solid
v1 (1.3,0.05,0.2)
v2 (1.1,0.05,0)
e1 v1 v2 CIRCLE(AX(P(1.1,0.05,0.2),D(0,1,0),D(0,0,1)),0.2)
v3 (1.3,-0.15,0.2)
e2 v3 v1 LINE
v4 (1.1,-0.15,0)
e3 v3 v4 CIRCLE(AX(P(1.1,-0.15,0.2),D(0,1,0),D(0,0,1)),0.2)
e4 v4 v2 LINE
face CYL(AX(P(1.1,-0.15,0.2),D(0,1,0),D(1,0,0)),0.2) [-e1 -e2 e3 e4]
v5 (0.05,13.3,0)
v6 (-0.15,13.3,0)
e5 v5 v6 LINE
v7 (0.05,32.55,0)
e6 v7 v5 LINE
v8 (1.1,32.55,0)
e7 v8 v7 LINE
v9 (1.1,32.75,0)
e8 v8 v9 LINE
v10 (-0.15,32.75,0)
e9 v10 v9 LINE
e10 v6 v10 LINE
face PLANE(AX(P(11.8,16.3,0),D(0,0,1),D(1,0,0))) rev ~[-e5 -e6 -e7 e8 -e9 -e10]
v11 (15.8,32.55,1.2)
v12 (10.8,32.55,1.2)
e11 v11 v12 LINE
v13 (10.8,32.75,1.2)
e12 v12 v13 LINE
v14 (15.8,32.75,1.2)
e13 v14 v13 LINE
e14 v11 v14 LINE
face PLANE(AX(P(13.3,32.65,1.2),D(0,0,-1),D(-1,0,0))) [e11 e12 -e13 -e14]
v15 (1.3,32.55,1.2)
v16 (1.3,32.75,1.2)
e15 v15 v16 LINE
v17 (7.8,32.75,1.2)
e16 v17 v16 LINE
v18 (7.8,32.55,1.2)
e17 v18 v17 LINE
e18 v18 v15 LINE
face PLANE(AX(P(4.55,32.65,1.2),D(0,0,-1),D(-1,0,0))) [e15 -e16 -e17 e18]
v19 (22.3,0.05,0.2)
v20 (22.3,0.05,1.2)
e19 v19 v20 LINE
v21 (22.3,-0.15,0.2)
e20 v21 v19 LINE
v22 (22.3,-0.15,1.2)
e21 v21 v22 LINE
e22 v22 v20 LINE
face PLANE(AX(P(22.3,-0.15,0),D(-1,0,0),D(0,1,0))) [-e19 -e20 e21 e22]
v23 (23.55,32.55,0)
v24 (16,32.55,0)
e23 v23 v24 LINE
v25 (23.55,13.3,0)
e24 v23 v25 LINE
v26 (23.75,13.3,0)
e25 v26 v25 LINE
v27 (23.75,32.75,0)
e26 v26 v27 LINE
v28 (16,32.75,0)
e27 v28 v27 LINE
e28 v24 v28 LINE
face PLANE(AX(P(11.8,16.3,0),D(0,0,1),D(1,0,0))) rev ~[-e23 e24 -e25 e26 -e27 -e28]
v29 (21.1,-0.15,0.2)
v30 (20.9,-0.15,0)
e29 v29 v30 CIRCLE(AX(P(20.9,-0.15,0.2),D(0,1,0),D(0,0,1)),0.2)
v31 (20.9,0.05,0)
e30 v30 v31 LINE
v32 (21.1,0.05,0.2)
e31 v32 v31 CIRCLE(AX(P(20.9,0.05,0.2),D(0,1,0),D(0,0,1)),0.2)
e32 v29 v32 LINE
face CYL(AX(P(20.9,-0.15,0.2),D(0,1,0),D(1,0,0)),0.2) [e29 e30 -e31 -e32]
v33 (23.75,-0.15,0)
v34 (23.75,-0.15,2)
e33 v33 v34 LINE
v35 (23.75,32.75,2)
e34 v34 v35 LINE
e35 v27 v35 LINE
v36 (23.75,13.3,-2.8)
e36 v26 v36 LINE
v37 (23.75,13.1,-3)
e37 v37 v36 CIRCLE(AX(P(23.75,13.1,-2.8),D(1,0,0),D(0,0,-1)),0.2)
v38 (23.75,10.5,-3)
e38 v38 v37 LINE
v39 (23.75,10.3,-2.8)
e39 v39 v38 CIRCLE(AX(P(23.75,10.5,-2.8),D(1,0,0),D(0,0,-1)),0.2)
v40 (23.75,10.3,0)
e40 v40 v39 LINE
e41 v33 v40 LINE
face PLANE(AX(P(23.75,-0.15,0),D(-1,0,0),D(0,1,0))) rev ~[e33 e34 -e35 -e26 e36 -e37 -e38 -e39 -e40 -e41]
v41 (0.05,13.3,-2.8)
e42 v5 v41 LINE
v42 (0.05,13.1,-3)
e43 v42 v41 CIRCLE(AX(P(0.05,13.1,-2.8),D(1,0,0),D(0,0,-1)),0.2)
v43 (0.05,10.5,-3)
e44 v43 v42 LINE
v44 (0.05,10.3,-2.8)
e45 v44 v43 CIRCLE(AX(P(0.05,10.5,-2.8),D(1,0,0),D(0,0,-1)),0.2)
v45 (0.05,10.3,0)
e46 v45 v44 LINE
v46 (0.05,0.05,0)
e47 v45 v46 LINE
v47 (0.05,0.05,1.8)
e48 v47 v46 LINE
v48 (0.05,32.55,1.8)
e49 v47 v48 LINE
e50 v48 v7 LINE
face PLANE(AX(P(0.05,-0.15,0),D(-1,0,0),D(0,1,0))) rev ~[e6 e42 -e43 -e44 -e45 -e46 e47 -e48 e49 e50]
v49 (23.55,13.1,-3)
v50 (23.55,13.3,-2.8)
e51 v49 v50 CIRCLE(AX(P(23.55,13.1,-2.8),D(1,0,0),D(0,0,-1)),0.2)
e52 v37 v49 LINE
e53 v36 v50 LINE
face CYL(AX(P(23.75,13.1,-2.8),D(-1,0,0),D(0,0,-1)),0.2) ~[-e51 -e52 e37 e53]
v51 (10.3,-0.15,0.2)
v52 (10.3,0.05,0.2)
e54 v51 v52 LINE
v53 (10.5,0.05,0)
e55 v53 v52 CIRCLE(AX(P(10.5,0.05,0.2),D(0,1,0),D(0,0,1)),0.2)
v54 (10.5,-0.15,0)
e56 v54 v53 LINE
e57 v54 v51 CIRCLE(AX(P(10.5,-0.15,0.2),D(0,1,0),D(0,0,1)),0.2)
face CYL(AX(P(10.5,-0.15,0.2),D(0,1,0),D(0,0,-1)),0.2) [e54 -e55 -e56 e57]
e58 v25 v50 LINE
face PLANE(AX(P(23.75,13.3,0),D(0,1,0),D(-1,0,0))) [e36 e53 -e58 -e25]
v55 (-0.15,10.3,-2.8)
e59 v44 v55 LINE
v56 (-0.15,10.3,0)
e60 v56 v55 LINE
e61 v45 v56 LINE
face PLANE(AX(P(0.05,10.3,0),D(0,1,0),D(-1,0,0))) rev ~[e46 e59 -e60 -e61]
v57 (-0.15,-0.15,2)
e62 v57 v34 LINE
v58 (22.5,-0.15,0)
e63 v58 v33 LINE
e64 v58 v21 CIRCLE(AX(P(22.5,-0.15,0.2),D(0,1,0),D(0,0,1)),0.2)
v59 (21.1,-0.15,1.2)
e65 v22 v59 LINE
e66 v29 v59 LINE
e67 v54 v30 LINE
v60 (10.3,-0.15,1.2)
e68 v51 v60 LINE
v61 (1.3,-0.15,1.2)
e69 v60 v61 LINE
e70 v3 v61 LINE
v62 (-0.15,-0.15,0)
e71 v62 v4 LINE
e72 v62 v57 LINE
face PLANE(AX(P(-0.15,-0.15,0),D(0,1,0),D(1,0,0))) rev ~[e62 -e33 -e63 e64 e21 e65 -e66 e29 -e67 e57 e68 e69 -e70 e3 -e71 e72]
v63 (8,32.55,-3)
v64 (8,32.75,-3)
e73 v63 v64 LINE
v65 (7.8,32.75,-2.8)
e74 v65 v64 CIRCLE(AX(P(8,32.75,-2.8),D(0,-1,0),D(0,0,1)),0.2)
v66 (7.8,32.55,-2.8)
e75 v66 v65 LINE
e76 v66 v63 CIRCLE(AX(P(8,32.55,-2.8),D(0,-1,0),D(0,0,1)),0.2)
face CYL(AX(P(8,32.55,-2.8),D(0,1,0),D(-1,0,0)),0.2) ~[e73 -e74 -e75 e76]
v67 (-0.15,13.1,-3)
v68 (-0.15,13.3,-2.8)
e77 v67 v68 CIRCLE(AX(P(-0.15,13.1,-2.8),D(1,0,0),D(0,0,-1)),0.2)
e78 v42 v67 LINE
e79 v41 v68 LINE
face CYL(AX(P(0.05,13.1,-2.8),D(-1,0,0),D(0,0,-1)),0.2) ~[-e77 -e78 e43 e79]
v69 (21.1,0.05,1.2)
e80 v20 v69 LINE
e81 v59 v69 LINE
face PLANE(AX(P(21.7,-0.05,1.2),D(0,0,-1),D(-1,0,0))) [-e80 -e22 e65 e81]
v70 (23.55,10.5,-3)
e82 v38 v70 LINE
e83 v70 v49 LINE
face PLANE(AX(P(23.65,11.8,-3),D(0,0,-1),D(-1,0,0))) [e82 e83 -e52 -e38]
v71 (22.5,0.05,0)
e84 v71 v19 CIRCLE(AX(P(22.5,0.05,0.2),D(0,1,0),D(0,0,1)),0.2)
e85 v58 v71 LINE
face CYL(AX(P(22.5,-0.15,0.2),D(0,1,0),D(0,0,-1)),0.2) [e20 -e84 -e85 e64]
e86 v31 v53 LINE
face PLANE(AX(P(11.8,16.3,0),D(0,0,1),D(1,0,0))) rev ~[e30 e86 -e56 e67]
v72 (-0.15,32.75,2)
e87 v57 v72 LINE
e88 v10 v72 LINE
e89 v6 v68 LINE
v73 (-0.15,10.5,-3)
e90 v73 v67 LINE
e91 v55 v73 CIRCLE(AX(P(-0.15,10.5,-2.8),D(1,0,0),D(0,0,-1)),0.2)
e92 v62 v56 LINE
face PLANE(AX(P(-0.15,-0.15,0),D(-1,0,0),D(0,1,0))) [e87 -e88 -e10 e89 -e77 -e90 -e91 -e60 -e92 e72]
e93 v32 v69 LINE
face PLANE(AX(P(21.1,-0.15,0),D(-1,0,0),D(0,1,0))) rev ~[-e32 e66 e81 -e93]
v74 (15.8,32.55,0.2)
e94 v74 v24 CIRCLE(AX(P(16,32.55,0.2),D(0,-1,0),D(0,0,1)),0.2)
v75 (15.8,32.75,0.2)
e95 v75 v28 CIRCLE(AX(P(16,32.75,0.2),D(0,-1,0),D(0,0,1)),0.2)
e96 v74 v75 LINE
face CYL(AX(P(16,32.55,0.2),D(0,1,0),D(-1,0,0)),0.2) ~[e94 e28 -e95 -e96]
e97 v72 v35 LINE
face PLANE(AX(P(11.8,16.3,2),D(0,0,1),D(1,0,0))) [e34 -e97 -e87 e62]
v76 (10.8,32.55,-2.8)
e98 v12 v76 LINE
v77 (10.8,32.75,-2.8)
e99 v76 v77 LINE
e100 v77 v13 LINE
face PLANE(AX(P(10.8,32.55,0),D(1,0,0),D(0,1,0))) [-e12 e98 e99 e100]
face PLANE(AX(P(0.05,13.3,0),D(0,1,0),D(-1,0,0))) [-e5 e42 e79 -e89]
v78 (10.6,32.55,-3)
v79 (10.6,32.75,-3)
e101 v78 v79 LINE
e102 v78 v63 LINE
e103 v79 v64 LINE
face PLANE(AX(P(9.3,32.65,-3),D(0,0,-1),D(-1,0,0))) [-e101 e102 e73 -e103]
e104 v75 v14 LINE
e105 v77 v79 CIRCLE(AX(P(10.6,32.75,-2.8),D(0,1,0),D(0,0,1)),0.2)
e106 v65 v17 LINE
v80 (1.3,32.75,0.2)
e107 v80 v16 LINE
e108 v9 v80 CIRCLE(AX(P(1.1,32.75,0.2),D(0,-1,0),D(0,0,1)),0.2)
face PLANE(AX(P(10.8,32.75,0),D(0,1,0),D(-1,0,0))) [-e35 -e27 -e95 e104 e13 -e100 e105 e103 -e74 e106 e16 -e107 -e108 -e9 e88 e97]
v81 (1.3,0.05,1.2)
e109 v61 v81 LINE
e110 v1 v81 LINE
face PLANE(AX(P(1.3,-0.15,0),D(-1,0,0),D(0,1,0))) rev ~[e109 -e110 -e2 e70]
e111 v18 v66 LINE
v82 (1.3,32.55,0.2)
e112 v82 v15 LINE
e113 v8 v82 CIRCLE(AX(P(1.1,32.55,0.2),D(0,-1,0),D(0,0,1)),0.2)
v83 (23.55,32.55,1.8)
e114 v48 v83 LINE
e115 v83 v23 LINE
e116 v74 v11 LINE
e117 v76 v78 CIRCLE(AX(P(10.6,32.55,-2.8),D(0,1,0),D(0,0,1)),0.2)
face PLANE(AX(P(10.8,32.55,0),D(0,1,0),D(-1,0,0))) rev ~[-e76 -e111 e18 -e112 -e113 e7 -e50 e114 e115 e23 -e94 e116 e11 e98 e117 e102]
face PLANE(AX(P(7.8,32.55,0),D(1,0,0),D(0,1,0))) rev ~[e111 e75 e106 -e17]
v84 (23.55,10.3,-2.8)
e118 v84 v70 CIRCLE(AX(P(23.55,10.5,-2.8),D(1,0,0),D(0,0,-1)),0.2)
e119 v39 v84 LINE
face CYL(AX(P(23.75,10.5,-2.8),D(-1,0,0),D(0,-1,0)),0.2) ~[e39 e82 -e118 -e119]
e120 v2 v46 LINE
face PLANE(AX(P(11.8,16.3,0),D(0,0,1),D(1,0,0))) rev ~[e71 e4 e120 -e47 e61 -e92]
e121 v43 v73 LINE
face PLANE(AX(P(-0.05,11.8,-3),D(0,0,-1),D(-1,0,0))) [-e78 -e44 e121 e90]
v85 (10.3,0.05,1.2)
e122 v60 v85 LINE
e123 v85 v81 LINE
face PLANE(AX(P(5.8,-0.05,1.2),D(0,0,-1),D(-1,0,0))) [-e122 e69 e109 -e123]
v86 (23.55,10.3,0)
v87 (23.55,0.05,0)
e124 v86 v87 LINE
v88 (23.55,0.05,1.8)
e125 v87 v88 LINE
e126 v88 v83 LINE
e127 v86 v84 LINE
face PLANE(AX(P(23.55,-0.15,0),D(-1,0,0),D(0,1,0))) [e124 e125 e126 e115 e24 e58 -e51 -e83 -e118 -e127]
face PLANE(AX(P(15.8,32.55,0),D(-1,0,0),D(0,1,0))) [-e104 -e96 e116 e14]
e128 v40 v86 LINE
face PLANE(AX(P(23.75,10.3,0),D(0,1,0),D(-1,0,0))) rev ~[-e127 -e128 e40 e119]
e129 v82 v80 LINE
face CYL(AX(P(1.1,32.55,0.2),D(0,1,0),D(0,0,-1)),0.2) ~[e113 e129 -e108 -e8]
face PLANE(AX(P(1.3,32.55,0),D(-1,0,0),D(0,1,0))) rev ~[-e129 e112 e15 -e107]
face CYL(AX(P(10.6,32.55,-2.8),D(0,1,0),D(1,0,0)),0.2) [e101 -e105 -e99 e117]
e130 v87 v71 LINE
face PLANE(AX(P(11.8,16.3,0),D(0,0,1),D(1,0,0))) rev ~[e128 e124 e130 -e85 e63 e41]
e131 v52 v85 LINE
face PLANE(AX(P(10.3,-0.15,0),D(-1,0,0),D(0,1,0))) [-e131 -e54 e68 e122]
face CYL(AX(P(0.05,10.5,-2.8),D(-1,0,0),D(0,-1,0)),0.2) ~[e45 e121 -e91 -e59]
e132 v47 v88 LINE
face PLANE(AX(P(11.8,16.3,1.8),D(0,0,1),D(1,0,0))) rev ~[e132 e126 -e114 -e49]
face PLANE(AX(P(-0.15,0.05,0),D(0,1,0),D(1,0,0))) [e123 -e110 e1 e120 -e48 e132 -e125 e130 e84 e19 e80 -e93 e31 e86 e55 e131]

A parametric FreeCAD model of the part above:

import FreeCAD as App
import Part
import Sketcher
from FreeCAD import Vector


def edges_at(feature, points):
    """Names of the edges that pass closest to the given points."""
    edges = feature.Shape.Edges
    near = lambda p: min(range(len(edges)), key=lambda i: edges[i].distToShape(Part.Vertex(*p))[0])
    return sorted({f"Edge{near(p) + 1}" for p in points})


def faces_at(feature, points):
    """Names of the faces that lie closest to the given points."""
    faces = feature.Shape.Faces
    near = lambda p: min(range(len(faces)), key=lambda i: faces[i].distToShape(Part.Vertex(*p))[0])
    return sorted({f"Face{near(p) + 1}" for p in points})


def add_polygon(sketch, points):
    """Adds a closed chain of lines whose ends are joined by coincident constraints."""
    first, n = sketch.GeometryCount, len(points)
    for a, b in zip(points, points[1:] + points[:1]):
        sketch.addGeometry(Part.LineSegment(App.Vector(*a, 0), App.Vector(*b, 0)), False)
    for i in range(n):
        sketch.addConstraint(Sketcher.Constraint("Coincident", first + i, 2, first + (i + 1) % n, 1))

doc = App.newDocument("Part")
params = doc.addObject("Spreadsheet::Sheet", "Params")
for row, (alias, value) in enumerate([
    ("sketch1_width", "23.9 mm"),
    ("sketch1_height", "32.9 mm"),
    ("pad1_length", "2 mm"),
    ("thickness_wall", "0.2 mm"),
    ("sketch2_width", "9 mm"),
    ("sketch2_width2", "5 mm"),
    ("sketch2_width3", "1.2 mm"),
    ("sketch2_width4", "6.5 mm"),
    ("sketch2_height", "0.2 mm"),
    ("pocket1_length", "1.2 mm"),
    ("sketch3_width", "3 mm"),
    ("sketch3_width2", "0.2 mm"),
    ("pad2_length", "3 mm"),
    ("fillet_radius", "0.2 mm"),
], start=1):
    params.set(f"A{row}", alias)
    params.set(f"B{row}", "=" + value)
    params.setAlias(f"B{row}", alias)

body = doc.addObject("PartDesign::Body", "Body")

sketch1 = doc.addObject("Sketcher::SketchObject", "Sketch")
body.addObject(sketch1)
sketch1.AttachmentSupport = (doc.XY_Plane, [""])
sketch1.MapMode = "FlatFace"
add_polygon(sketch1, [(-0.15, 32.75), (-0.15, -0.15), (23.75, -0.15), (23.75, 32.75)])
sketch1.addConstraint(Sketcher.Constraint("Vertical", 0))
sketch1.addConstraint(Sketcher.Constraint("Horizontal", 1))
sketch1.addConstraint(Sketcher.Constraint("Vertical", 2))
sketch1.addConstraint(Sketcher.Constraint("Horizontal", 3))
sketch1.addConstraint(Sketcher.Constraint("DistanceX", 1, 1, 1, 2, 23.9))
sketch1.addConstraint(Sketcher.Constraint("DistanceY", 0, 2, 0, 1, 32.9))
sketch1.addConstraint(Sketcher.Constraint("DistanceX", 0, 2, -1, 1, 0.15))
sketch1.addConstraint(Sketcher.Constraint("DistanceY", 0, 2, -1, 1, 0.15))
sketch1.setExpression("Constraints[8]", "Params.sketch1_width")
sketch1.setExpression("Constraints[9]", "Params.sketch1_height")
pad1 = doc.addObject("PartDesign::Pad", "Pad")
body.addObject(pad1)
pad1.Profile = sketch1
pad1.setExpression("Length", "Params.pad1_length")
doc.recompute()

thickness = doc.addObject("PartDesign::Thickness", "Thickness")
body.addObject(thickness)
thickness.Base = (pad1, faces_at(pad1, [(11.8, 16.3, 0)]))
thickness.setExpression("Value", "Params.thickness_wall")
thickness.Reversed = True
thickness.Join = "Intersection"

sketch2 = doc.addObject("Sketcher::SketchObject", "Sketch001")
body.addObject(sketch2)
sketch2.AttachmentSupport = (doc.XY_Plane, [""])
sketch2.MapMode = "FlatFace"
add_polygon(sketch2, [(10.3, 0.05), (10.3, -0.15), (1.3, -0.15), (1.3, 0.05)])
add_polygon(sketch2, [(22.3, 0.05), (22.3, -0.15), (21.1, -0.15), (21.1, 0.05)])
add_polygon(sketch2, [(15.8, 32.75), (15.8, 32.55), (10.8, 32.55), (10.8, 32.75)])
add_polygon(sketch2, [(7.8, 32.75), (7.8, 32.55), (1.3, 32.55), (1.3, 32.75)])
sketch2.addConstraint(Sketcher.Constraint("Vertical", 0))
sketch2.addConstraint(Sketcher.Constraint("Horizontal", 1))
sketch2.addConstraint(Sketcher.Constraint("Vertical", 2))
sketch2.addConstraint(Sketcher.Constraint("Horizontal", 3))
sketch2.addConstraint(Sketcher.Constraint("Vertical", 4))
sketch2.addConstraint(Sketcher.Constraint("Horizontal", 5))
sketch2.addConstraint(Sketcher.Constraint("Vertical", 6))
sketch2.addConstraint(Sketcher.Constraint("Horizontal", 7))
sketch2.addConstraint(Sketcher.Constraint("Vertical", 8))
sketch2.addConstraint(Sketcher.Constraint("Horizontal", 9))
sketch2.addConstraint(Sketcher.Constraint("Vertical", 10))
sketch2.addConstraint(Sketcher.Constraint("Horizontal", 11))
sketch2.addConstraint(Sketcher.Constraint("Vertical", 12))
sketch2.addConstraint(Sketcher.Constraint("Horizontal", 13))
sketch2.addConstraint(Sketcher.Constraint("Vertical", 14))
sketch2.addConstraint(Sketcher.Constraint("Horizontal", 15))
sketch2.addConstraint(Sketcher.Constraint("Horizontal", 1, 2, 4, 2))
sketch2.addConstraint(Sketcher.Constraint("Horizontal", 3, 2, 6, 2))
sketch2.addConstraint(Sketcher.Constraint("Horizontal", 9, 2, 12, 2))
sketch2.addConstraint(Sketcher.Constraint("Horizontal", 11, 2, 14, 2))
sketch2.addConstraint(Sketcher.Constraint("Vertical", 2, 2, 13, 2))
sketch2.addConstraint(Sketcher.Constraint("Equal", 6, 8))
sketch2.addConstraint(Sketcher.Constraint("DistanceX", 1, 2, 1, 1, 9.0))
sketch2.addConstraint(Sketcher.Constraint("DistanceX", 9, 2, 9, 1, 5.0))
sketch2.addConstraint(Sketcher.Constraint("DistanceX", 5, 2, 5, 1, 1.2))
sketch2.addConstraint(Sketcher.Constraint("DistanceX", 13, 2, 13, 1, 6.5))
sketch2.addConstraint(Sketcher.Constraint("DistanceY", 0, 2, 0, 1, 0.2))
sketch2.addConstraint(Sketcher.Constraint("DistanceX", 0, 2, 4, 2, 12.0))
sketch2.addConstraint(Sketcher.Constraint("DistanceX", 12, 2, 9, 2, 3.0))
sketch2.addConstraint(Sketcher.Constraint("DistanceX", -1, 1, 0, 2, 10.3))
sketch2.addConstraint(Sketcher.Constraint("DistanceY", 6, 2, 8, 2, 32.5))
sketch2.addConstraint(Sketcher.Constraint("DistanceY", 0, 2, -1, 1, 0.15))
sketch2.setExpression("Constraints[38]", "Params.sketch2_width")
sketch2.setExpression("Constraints[39]", "Params.sketch2_width2")
sketch2.setExpression("Constraints[40]", "Params.sketch2_width3")
sketch2.setExpression("Constraints[41]", "Params.sketch2_width4")
sketch2.setExpression("Constraints[42]", "Params.sketch2_height")
pocket1 = doc.addObject("PartDesign::Pocket", "Pocket")
body.addObject(pocket1)
pocket1.Profile = sketch2
pocket1.setExpression("Length", "Params.pocket1_length")
pocket1.Reversed = True

sketch3 = doc.addObject("Sketcher::SketchObject", "Sketch002")
body.addObject(sketch3)
sketch3.AttachmentSupport = (doc.XY_Plane, [""])
sketch3.MapMode = "FlatFace"
add_polygon(sketch3, [(10.8, 32.75), (10.8, 32.55), (7.8, 32.55), (7.8, 32.75)])
add_polygon(sketch3, [(23.75, 13.3), (23.75, 10.3), (23.55, 10.3), (23.55, 13.3)])
add_polygon(sketch3, [(0.05, 13.3), (0.05, 10.3), (-0.15, 10.3), (-0.15, 13.3)])
sketch3.addConstraint(Sketcher.Constraint("Vertical", 0))
sketch3.addConstraint(Sketcher.Constraint("Horizontal", 1))
sketch3.addConstraint(Sketcher.Constraint("Vertical", 2))
sketch3.addConstraint(Sketcher.Constraint("Horizontal", 3))
sketch3.addConstraint(Sketcher.Constraint("Vertical", 4))
sketch3.addConstraint(Sketcher.Constraint("Horizontal", 5))
sketch3.addConstraint(Sketcher.Constraint("Vertical", 6))
sketch3.addConstraint(Sketcher.Constraint("Horizontal", 7))
sketch3.addConstraint(Sketcher.Constraint("Vertical", 8))
sketch3.addConstraint(Sketcher.Constraint("Horizontal", 9))
sketch3.addConstraint(Sketcher.Constraint("Vertical", 10))
sketch3.addConstraint(Sketcher.Constraint("Horizontal", 11))
sketch3.addConstraint(Sketcher.Constraint("Horizontal", 5, 2, 8, 2))
sketch3.addConstraint(Sketcher.Constraint("Horizontal", 7, 2, 10, 2))
sketch3.addConstraint(Sketcher.Constraint("Equal", 7, 9))
sketch3.addConstraint(Sketcher.Constraint("Equal", 11, 0))
sketch3.addConstraint(Sketcher.Constraint("Equal", 3, 4))
sketch3.addConstraint(Sketcher.Constraint("DistanceX", 1, 2, 1, 1, 3.0))
sketch3.addConstraint(Sketcher.Constraint("DistanceX", 5, 2, 5, 1, 0.2))
sketch3.addConstraint(Sketcher.Constraint("DistanceX", -1, 1, 0, 2, 10.8))
sketch3.addConstraint(Sketcher.Constraint("DistanceY", -1, 1, 4, 2, 10.3))
sketch3.addConstraint(Sketcher.Constraint("DistanceX", 8, 2, 5, 2, 23.5))
sketch3.addConstraint(Sketcher.Constraint("DistanceY", -1, 1, 0, 2, 32.55))
sketch3.addConstraint(Sketcher.Constraint("DistanceX", -1, 1, 4, 2, 23.75))
sketch3.setExpression("Constraints[29]", "Params.sketch3_width")
sketch3.setExpression("Constraints[30]", "Params.sketch3_width2")
pad2 = doc.addObject("PartDesign::Pad", "Pad001")
body.addObject(pad2)
pad2.Profile = sketch3
pad2.setExpression("Length", "Params.pad2_length")
pad2.Reversed = True
doc.recompute()

fillet = doc.addObject("PartDesign::Fillet", "Fillet")
body.addObject(fillet)
fillet.Base = (pad2, edges_at(pad2, [
    (-0.05, 13.3, -3),
    (-0.05, 10.3, -3),
    (23.65, 13.3, -3),
    (23.65, 10.3, -3),
    (1.3, -0.05, 0),
    (10.3, -0.05, 0),
    (21.1, -0.05, 0),
    (22.3, -0.05, 0),
    (15.8, 32.65, 0),
    (1.3, 32.65, 0),
    (7.8, 32.65, -3),
    (10.8, 32.65, -3),
]))
fillet.setExpression("Radius", "Params.fillet_radius")

doc.recompute()
